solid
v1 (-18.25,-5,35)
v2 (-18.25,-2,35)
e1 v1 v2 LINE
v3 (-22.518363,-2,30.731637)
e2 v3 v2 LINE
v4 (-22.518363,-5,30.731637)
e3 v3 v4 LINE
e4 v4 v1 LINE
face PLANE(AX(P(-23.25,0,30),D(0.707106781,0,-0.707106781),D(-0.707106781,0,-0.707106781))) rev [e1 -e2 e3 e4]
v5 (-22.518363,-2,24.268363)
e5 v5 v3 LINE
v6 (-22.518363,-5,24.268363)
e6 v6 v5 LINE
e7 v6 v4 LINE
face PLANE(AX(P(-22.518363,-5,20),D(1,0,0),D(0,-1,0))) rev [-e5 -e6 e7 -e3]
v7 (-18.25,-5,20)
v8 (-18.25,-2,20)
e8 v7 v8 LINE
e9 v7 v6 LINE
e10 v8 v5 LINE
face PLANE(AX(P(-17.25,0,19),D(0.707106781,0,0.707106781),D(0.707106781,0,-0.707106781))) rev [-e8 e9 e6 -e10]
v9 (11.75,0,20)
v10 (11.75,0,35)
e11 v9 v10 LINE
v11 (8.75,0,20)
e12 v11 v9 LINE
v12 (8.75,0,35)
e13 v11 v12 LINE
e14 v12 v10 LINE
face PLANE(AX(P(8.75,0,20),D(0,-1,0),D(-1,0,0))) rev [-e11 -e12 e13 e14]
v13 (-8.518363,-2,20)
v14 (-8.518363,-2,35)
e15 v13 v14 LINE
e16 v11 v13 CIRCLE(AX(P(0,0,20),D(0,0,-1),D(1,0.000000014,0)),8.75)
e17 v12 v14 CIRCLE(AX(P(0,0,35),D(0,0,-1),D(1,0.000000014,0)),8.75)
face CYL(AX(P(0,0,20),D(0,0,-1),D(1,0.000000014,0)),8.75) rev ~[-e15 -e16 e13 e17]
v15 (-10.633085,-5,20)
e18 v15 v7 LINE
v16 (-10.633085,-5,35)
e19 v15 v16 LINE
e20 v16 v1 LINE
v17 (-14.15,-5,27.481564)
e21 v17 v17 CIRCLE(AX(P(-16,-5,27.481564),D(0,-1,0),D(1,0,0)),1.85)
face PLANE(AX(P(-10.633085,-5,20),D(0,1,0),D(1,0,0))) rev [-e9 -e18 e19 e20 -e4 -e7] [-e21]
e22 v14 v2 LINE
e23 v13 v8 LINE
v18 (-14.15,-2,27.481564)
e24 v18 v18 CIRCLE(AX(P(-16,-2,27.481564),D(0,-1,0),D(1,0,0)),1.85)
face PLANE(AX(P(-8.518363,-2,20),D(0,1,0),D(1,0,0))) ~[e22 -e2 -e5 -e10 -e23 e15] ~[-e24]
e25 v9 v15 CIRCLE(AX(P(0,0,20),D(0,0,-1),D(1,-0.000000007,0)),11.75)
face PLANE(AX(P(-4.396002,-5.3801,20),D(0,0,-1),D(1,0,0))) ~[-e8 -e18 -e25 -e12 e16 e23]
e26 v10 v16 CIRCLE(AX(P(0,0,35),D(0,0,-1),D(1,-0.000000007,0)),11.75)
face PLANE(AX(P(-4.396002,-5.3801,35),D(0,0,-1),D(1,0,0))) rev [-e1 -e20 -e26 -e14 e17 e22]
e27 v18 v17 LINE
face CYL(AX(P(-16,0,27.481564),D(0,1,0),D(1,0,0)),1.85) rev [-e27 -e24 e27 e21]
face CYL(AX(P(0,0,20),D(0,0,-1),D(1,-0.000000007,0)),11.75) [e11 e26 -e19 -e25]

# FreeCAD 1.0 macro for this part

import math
import FreeCAD as App
import Part
import Sketcher


def add_polygon(sketch, points):
    """Adds a closed chain of lines whose ends are joined by coincident constraints."""
    first, n = sketch.GeometryCount, len(points)
    for a, b in zip(points, points[1:] + points[:1]):
        sketch.addGeometry(Part.LineSegment(App.Vector(*a, 0), App.Vector(*b, 0)), False)
    for i in range(n):
        sketch.addConstraint(Sketcher.Constraint("Coincident", first + i, 2, first + (i + 1) % n, 1))

doc = App.newDocument("Part")
body = doc.addObject("PartDesign::Body", "Body")

sketch1 = body.newObject("Sketcher::SketchObject", "Sketch")
sketch1.AttachmentSupport = (doc.getObject("XZ_Plane"), [""])
sketch1.MapMode = "FlatFace"
add_polygon(sketch1, [(11.8, 19), (11.8, 36), (-17.2, 36), (-23.2, 30), (-23.2, 25), (-17.2, 19)])
sketch1.addGeometry(Part.Circle(App.Vector(-16, 27.5, 0), App.Vector(0, 0, 1), 1.9), False)
sketch1.addConstraint(Sketcher.Constraint("Vertical", 0))
sketch1.addConstraint(Sketcher.Constraint("Horizontal", 1))
sketch1.addConstraint(Sketcher.Constraint("Vertical", 3))
sketch1.addConstraint(Sketcher.Constraint("Horizontal", 5))
sketch1.addConstraint(Sketcher.Constraint("Perpendicular", 2, 4))
sketch1.addConstraint(Sketcher.Constraint("Vertical", 1, 2, 4, 2))
sketch1.addConstraint(Sketcher.Constraint("Equal", 2, 4))
sketch1.addConstraint(Sketcher.Constraint("Diameter", 6, 3.7))
sketch1.addConstraint(Sketcher.Constraint("DistanceX", 1, 2, 1, 1, 29.0))
sketch1.addConstraint(Sketcher.Constraint("DistanceY", 0, 1, 0, 2, 17.0))
sketch1.addConstraint(Sketcher.Constraint("DistanceY", 3, 2, 3, 1, 5.0))
sketch1.addConstraint(Sketcher.Constraint("DistanceX", 6, 3, -1, 1, 16.0))
sketch1.addConstraint(Sketcher.Constraint("DistanceY", -1, 1, 0, 2, 36.0))
sketch1.addConstraint(Sketcher.Constraint("DistanceX", -1, 1, 0, 2, 11.75))
sketch1.addConstraint(Sketcher.Constraint("DistanceY", -1, 1, 6, 3, 27.481564))
pad1 = body.newObject("PartDesign::Pad", "Pad")
pad1.Profile = sketch1
pad1.Length = 12
pad1.Reversed = True
body2 = doc.addObject("PartDesign::Body", "Body001")

sketch2 = body2.newObject("Sketcher::SketchObject", "Sketch001")
sketch2.AttachmentSupport = (doc.getObject("XZ_Plane001"), [""])
sketch2.MapMode = "FlatFace"
sketch2.AttachmentOffset = App.Placement(App.Vector(0, 0, -18), App.Rotation())
sketch2.addGeometry(Part.Circle(App.Vector(-16, 28, 0), App.Vector(0, 0, 1), 5), False)
sketch2.addConstraint(Sketcher.Constraint("Diameter", 0, 10.0))
sketch2.addConstraint(Sketcher.Constraint("DistanceX", 0, 3, -1, 1, 16.0))
sketch2.addConstraint(Sketcher.Constraint("DistanceY", -1, 1, 0, 3, 27.5))
pad2 = body2.newObject("PartDesign::Pad", "Pad001")
pad2.Profile = sketch2
pad2.Length = 1
body3 = doc.addObject("PartDesign::Body", "Body002")

sketch3 = body3.newObject("Sketcher::SketchObject", "Sketch002")
sketch3.AttachmentSupport = (doc.getObject("XY_Plane002"), [""])
sketch3.MapMode = "FlatFace"
sketch3.AttachmentOffset = App.Placement(App.Vector(0, 0, 50), App.Rotation())
sketch3.addGeometry(Part.ArcOfCircle(Part.Circle(App.Vector(0, 0, 0), App.Vector(0, 0, 1), 8.8), math.radians(0), math.radians(167)), False)
sketch3.addGeometry(Part.LineSegment(App.Vector(8.8, 0, 0), App.Vector(11.8, 0, 0)), False)
sketch3.addGeometry(Part.ArcOfCircle(Part.Circle(App.Vector(0, 0, 0), App.Vector(0, 0, 1), 11.7), math.radians(0), math.radians(155)), False)
sketch3.addGeometry(Part.LineSegment(App.Vector(-10.6, 5, 0), App.Vector(-22.5, 5, 0)), False)
sketch3.addGeometry(Part.LineSegment(App.Vector(-22.5, 5, 0), App.Vector(-22.5, 2, 0)), False)
sketch3.addGeometry(Part.LineSegment(App.Vector(-22.5, 2, 0), App.Vector(-8.5, 2, 0)), False)
sketch3.addConstraint(Sketcher.Constraint("Coincident", 0, 1, 1, 1))
sketch3.addConstraint(Sketcher.Constraint("Coincident", 1, 2, 2, 1))
sketch3.addConstraint(Sketcher.Constraint("Coincident", 2, 2, 3, 1))
sketch3.addConstraint(Sketcher.Constraint("Coincident", 3, 2, 4, 1))
sketch3.addConstraint(Sketcher.Constraint("Coincident", 4, 2, 5, 1))
sketch3.addConstraint(Sketcher.Constraint("Coincident", 5, 2, 0, 2))
sketch3.addConstraint(Sketcher.Constraint("Horizontal", 1))
sketch3.addConstraint(Sketcher.Constraint("Horizontal", 3))
sketch3.addConstraint(Sketcher.Constraint("Vertical", 4))
sketch3.addConstraint(Sketcher.Constraint("Horizontal", 5))
sketch3.addConstraint(Sketcher.Constraint("Coincident", 0, 3, -1, 1))
sketch3.addConstraint(Sketcher.Constraint("Coincident", 2, 3, -1, 1))
sketch3.addConstraint(Sketcher.Constraint("PointOnObject", 0, 1, -1))
sketch3.addConstraint(Sketcher.Constraint("Equal", 1, 4))
sketch3.addConstraint(Sketcher.Constraint("DistanceX", 1, 1, 1, 2, 3.0))
sketch3.addConstraint(Sketcher.Constraint("DistanceX", 5, 1, 5, 2, 14.0))
sketch3.addConstraint(Sketcher.Constraint("Radius", 0, 8.75))
sketch3.addConstraint(Sketcher.Constraint("DistanceY", -1, 1, 2, 2, 5.0))
pad3 = body3.newObject("PartDesign::Pad", "Pad002")
pad3.Profile = sketch3
pad3.Length = 15
body4 = doc.addObject("PartDesign::Body", "Body003")
body4.AllowCompound = True
doc.recompute()

body3.Placement = App.Placement(App.Vector(0, 0, -30), App.Rotation(App.Vector(0, 0, 1), 0))
boolean = body4.newObject("PartDesign::Boolean", "Boolean")
boolean.Type = "Fuse"
boolean.addObjects([body3])
doc.recompute()

boolean2 = body4.newObject("PartDesign::Boolean", "Boolean001")
boolean2.Type = "Fuse"
boolean2.addObjects([body2])
doc.recompute()

boolean3 = body4.newObject("PartDesign::Boolean", "Boolean002")
boolean3.Type = "Common"
boolean3.addObjects([body])
body5 = doc.addObject("PartDesign::Body", "Body004")
doc.recompute()

mirroring = doc.addObject("Part::Mirroring", "Mirroring")
mirroring.Source = body4
mirroring.Base = App.Vector(0, 0, 0)
mirroring.Normal = App.Vector(0, 1, 0)
body5.BaseFeature = mirroring
doc.recompute()
body4.Visibility = False
mirroring.Visibility = False

doc.recompute()
